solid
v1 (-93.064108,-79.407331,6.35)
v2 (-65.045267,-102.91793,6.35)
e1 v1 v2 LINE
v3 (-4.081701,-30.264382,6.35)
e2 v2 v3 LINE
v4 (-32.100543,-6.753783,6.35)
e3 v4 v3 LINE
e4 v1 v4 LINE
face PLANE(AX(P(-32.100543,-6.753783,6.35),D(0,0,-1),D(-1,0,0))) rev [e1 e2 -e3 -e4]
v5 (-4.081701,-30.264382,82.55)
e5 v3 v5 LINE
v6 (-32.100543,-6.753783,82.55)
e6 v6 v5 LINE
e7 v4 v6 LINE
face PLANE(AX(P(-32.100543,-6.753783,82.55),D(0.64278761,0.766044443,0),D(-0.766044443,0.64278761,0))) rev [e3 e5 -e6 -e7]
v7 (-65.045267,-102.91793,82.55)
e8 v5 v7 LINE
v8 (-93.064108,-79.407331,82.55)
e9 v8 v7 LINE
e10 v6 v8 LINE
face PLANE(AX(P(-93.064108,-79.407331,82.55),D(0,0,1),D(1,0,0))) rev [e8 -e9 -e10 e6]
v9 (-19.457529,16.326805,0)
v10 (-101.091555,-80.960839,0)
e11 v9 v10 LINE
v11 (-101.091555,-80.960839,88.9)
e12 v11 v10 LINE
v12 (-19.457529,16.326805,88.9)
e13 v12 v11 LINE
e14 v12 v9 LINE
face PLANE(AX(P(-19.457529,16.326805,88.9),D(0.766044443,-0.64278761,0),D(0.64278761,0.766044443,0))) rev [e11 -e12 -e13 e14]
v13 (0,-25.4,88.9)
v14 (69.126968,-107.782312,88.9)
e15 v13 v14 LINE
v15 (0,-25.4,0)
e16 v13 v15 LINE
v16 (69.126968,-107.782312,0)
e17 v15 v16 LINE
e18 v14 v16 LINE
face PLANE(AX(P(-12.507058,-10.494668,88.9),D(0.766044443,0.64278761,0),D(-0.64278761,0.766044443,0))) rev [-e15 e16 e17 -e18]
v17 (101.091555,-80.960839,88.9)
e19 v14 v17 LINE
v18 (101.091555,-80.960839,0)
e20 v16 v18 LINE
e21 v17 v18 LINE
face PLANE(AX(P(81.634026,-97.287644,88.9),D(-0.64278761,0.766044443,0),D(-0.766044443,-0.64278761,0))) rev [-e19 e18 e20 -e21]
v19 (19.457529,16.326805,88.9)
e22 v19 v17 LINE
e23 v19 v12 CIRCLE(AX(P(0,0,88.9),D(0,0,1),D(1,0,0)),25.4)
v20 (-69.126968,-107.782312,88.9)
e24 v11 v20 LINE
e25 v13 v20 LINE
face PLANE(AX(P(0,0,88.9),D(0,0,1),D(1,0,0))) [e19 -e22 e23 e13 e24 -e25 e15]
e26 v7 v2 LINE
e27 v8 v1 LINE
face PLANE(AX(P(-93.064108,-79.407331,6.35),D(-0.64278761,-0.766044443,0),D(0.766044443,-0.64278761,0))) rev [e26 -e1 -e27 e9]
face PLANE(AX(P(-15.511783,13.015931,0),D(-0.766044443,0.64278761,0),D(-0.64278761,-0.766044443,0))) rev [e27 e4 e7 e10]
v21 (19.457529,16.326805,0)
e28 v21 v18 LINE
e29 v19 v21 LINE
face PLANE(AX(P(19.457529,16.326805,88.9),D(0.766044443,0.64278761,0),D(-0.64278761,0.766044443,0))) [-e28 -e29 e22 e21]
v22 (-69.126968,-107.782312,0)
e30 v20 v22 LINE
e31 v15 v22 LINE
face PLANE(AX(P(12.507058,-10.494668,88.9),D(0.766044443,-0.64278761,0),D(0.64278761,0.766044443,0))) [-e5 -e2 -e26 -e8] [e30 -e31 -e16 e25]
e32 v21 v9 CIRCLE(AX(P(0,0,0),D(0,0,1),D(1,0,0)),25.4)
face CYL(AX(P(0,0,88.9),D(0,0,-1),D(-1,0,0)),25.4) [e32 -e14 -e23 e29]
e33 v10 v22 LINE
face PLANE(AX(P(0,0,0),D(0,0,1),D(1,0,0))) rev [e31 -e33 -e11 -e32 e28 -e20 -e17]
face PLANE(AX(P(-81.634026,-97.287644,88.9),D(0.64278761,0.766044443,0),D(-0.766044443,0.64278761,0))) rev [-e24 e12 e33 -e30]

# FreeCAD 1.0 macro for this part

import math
import FreeCAD as App
import Part
import Sketcher
Q = App.Units.Quantity

doc = App.newDocument("Part")
body = doc.addObject("PartDesign::Body", "Body")

# Sketch on XY plane
sketch1 = body.newObject("Sketcher::SketchObject", "Sketch")
sketch1.AttachmentSupport = (doc.getObject("XY_Plane"), [""])
sketch1.MapMode = "FlatFace"
sketch1.addGeometry(Part.LineSegment(App.Vector(0, -25.4, 0), App.Vector(69.126968, -107.782312, 0)), False)
sketch1.addGeometry(Part.LineSegment(App.Vector(69.126968, -107.782312, 0), App.Vector(101.091555, -80.960839, 0)), False)
sketch1.addGeometry(Part.LineSegment(App.Vector(101.091555, -80.960839, 0), App.Vector(19.457529, 16.326805, 0)), False)
sketch1.addGeometry(Part.ArcOfCircle(Part.Circle(App.Vector(0, 0, 0), App.Vector(0, 0, 1), 25.4), math.radians(40), math.radians(140)), False)
sketch1.addGeometry(Part.LineSegment(App.Vector(-19.457529, 16.326805, 0), App.Vector(-101.091555, -80.960839, 0)), False)
sketch1.addGeometry(Part.LineSegment(App.Vector(-101.091555, -80.960839, 0), App.Vector(-69.126968, -107.782312, 0)), False)
sketch1.addGeometry(Part.LineSegment(App.Vector(-69.126968, -107.782312, 0), App.Vector(0, -25.4, 0)), False)
sketch1.addConstraint(Sketcher.Constraint("Coincident", 0, 2, 1, 1))
sketch1.addConstraint(Sketcher.Constraint("Coincident", 1, 2, 2, 1))
sketch1.addConstraint(Sketcher.Constraint("Tangent", 2, 2, 3, 1))
sketch1.addConstraint(Sketcher.Constraint("Tangent", 3, 2, 4, 1))
sketch1.addConstraint(Sketcher.Constraint("Coincident", 4, 2, 5, 1))
sketch1.addConstraint(Sketcher.Constraint("Coincident", 5, 2, 6, 1))
sketch1.addConstraint(Sketcher.Constraint("Coincident", 6, 2, 0, 1))
sketch1.addConstraint(Sketcher.Constraint("Coincident", 3, 3, -1, 1))
sketch1.addConstraint(Sketcher.Constraint("Symmetric", 1, 2, 4, 2, -2))
sketch1.addConstraint(Sketcher.Constraint("Symmetric", 0, 2, 5, 2, -2))
sketch1.addConstraint(Sketcher.Constraint("PointOnObject", 6, 2, -2))
sketch1.addConstraint(Sketcher.Constraint("Perpendicular", 0, 1))
sketch1.addConstraint(Sketcher.Constraint("Perpendicular", 1, 2))
sketch1.addConstraint(Sketcher.Constraint("Radius", 3, Q("1 in")))
sketch1.addConstraint(Sketcher.Constraint("Distance", 2, Q("5 in")))
sketch1.addConstraint(Sketcher.Constraint("DistanceY", 6, 2, -1, 1, Q("1 in")))
sketch1.addConstraint(Sketcher.Constraint("Angle", 0, Q("-50 deg")))
pad1 = body.newObject("PartDesign::Pad", "Pad")
pad1.Profile = sketch1
pad1.Length = Q("3.5 in")

# Sketch on an angled plane
sketch2 = body.newObject("Sketcher::SketchObject", "Sketch001")
sketch2.Placement = App.Placement(App.Vector(12.507058, -10.494668, 0), App.Rotation(App.Vector(0, 0, -1), App.Vector(0.64278761, 0.766044443, 0), App.Vector(0.766044443, -0.64278761, 0), "ZXY"))
sketch2.addGeometry(Part.LineSegment(App.Vector(-82.55, -25.807529, 0), App.Vector(-82.55, -120.65, 0)), False)
sketch2.addGeometry(Part.LineSegment(App.Vector(-82.55, -120.65, 0), App.Vector(-6.35, -120.65, 0)), False)
sketch2.addGeometry(Part.LineSegment(App.Vector(-6.35, -120.65, 0), App.Vector(-6.35, -25.807529, 0)), False)
sketch2.addGeometry(Part.LineSegment(App.Vector(-6.35, -25.807529, 0), App.Vector(-82.55, -25.807529, 0)), False)
sketch2.addConstraint(Sketcher.Constraint("Coincident", 0, 2, 1, 1))
sketch2.addConstraint(Sketcher.Constraint("Coincident", 1, 2, 2, 1))
sketch2.addConstraint(Sketcher.Constraint("Coincident", 2, 2, 3, 1))
sketch2.addConstraint(Sketcher.Constraint("Coincident", 3, 2, 0, 1))
sketch2.addConstraint(Sketcher.Constraint("Vertical", 0))
sketch2.addConstraint(Sketcher.Constraint("Horizontal", 1))
sketch2.addConstraint(Sketcher.Constraint("Vertical", 2))
sketch2.addConstraint(Sketcher.Constraint("Horizontal", 3))
sketch2.addConstraint(Sketcher.Constraint("DistanceX", 1, 1, 1, 2, Q("3 in")))
sketch2.addConstraint(Sketcher.Constraint("DistanceX", 0, 2, -1, 1, Q("3.25 in")))
sketch2.addConstraint(Sketcher.Constraint("DistanceY", 0, 2, -1, 1, Q("4.75 in")))
sketch2.addConstraint(Sketcher.Constraint("DistanceY", 0, 2, 0, 1, Q("94.842471 mm")))
pocket1 = body.newObject("PartDesign::Pocket", "Pocket")
pocket1.Profile = sketch2
pocket1.Type = "TwoLengths"
pocket1.Length = Q("0.12 in")
pocket1.Length2 = Q("1.44 in")
pocket1.Reversed = True

doc.recompute()
